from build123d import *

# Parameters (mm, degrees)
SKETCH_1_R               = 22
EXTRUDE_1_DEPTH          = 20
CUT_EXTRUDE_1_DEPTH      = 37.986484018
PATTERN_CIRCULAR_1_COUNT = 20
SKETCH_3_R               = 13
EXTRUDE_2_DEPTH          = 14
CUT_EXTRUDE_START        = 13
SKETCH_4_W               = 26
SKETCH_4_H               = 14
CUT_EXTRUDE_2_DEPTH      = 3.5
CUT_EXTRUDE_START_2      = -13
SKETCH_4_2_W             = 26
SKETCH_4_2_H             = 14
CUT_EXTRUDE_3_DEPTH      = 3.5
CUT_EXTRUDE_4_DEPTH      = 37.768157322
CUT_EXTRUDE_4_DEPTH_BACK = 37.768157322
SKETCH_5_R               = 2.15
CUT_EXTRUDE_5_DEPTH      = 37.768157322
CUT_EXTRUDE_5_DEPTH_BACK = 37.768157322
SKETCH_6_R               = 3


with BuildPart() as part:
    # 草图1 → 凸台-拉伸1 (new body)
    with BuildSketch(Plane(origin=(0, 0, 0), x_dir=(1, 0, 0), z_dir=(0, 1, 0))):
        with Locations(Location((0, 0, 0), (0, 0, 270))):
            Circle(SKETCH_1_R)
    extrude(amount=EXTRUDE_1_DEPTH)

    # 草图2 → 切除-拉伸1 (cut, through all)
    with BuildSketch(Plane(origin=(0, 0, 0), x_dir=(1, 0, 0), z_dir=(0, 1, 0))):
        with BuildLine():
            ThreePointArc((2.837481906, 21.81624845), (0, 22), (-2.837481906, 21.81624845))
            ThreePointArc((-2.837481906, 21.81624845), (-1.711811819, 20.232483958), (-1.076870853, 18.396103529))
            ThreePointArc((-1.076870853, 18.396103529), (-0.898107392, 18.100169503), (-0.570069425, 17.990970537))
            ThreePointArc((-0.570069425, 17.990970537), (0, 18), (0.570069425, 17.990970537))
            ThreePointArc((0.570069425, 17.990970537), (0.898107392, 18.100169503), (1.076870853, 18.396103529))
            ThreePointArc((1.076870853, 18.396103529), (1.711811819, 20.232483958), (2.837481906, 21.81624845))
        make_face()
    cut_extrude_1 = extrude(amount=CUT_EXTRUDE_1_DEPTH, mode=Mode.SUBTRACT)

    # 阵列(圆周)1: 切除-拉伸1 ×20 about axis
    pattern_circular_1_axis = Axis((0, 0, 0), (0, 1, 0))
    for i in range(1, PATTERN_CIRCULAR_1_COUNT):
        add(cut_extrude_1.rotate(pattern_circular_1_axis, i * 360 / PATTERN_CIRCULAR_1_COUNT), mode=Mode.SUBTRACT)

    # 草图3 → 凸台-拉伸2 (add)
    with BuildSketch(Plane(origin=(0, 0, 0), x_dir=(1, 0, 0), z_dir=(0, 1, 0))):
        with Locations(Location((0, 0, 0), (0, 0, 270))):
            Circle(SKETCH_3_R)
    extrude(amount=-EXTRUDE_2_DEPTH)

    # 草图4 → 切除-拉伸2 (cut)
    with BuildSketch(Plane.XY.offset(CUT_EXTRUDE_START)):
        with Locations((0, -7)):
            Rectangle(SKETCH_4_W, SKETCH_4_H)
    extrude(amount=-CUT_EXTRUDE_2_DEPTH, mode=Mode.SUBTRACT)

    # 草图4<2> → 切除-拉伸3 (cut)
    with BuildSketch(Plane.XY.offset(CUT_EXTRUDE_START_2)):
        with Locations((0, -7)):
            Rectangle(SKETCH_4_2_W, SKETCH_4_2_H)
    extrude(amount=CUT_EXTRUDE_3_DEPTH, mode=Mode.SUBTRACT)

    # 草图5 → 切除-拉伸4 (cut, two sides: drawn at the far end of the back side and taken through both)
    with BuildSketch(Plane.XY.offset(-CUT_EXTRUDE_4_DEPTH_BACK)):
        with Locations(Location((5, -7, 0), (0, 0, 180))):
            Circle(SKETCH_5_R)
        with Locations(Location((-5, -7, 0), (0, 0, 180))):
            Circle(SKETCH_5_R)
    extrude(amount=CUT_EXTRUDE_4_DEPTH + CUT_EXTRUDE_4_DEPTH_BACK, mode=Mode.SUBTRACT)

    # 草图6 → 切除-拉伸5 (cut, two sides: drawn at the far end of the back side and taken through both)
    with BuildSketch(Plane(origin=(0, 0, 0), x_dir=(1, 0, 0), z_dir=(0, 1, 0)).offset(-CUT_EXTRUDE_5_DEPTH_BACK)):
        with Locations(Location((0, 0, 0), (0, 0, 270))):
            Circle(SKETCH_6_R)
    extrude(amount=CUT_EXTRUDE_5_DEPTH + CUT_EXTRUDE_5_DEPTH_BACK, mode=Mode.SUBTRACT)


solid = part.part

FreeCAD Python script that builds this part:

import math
import FreeCAD as App
import Part
import Sketcher
Q = App.Units.Quantity

doc = App.newDocument("Part")
params = doc.addObject("Spreadsheet::Sheet", "Params")
for row, (alias, value) in enumerate([
    ("sketch1_diameter", "44 mm"),
    ("pad1_length", "20 mm"),
    ("sketch2_radius", "22 mm"),
    ("sketch2_radius2", "18.000001 mm"),
    ("sketch2_radius3", "0.5 mm"),
    ("sketch3_diameter", "26 mm"),
    ("pad2_length", "14 mm"),
    ("sketch4_width", "26 mm"),
    ("sketch4_height", "14 mm"),
    ("pocket2_length", "3.5 mm"),
    ("sketch5_width", "26 mm"),
    ("sketch5_height", "14 mm"),
    ("pocket3_length", "3.5 mm"),
    ("sketch6_diameter", "4.3 mm"),
    ("sketch7_diameter", "6 mm"),
], start=1):
    params.set(f"A{row}", alias)
    params.set(f"B{row}", "=" + value)
    params.setAlias(f"B{row}", alias)

body = doc.addObject("PartDesign::Body", "Body")

# Sketch on XZ plane
sketch1 = doc.addObject("Sketcher::SketchObject", "Sketch")
body.addObject(sketch1)
sketch1.AttachmentSupport = (doc.XZ_Plane, [""])
sketch1.MapMode = "FlatFace"
sketch1.addGeometry(Part.Circle(App.Vector(0, 0, 0), App.Vector(0, 0, 1), 22), False)
sketch1.addConstraint([
    Sketcher.Constraint("Coincident", 0, 3, -1, 1),
    Sketcher.Constraint("Diameter", 0, Q("44 mm")),
])
sketch1.setExpression("Constraints[1]", "Params.sketch1_diameter")
pad1 = doc.addObject("PartDesign::Pad", "Pad")
body.addObject(pad1)
pad1.Profile = sketch1
pad1.setExpression("Length", "Params.pad1_length")
pad1.Reversed = True

# Sketch on XZ plane
sketch2 = doc.addObject("Sketcher::SketchObject", "Sketch001")
body.addObject(sketch2)
sketch2.AttachmentSupport = (doc.XZ_Plane, [""])
sketch2.MapMode = "FlatFace"
sketch2.addGeometry([
    Part.ArcOfCircle(Part.Circle(App.Vector(0, 0, 0), App.Vector(0, 0, 1), 22), math.radians(-97.41), math.radians(-82.59)),  # 0
    Part.ArcOfCircle(Part.Circle(App.Vector(-7.79, -17.1, 0), App.Vector(0, 0, 1), 6.84), math.radians(-44), math.radians(-11)),  # 1
    Part.ArcOfCircle(Part.Circle(App.Vector(-0.59, -18.49, 0), App.Vector(0, 0, 1), 0.5), math.radians(88), math.radians(169)),  # 2
    Part.ArcOfCircle(Part.Circle(App.Vector(0, 0, 0), App.Vector(0, 0, 1), 18), math.radians(-91.81), math.radians(-88.19)),  # 3
    Part.ArcOfCircle(Part.Circle(App.Vector(0.59, -18.49, 0), App.Vector(0, 0, 1), 0.5), math.radians(11), math.radians(92)),  # 4
    Part.ArcOfCircle(Part.Circle(App.Vector(7.79, -17.1, 0), App.Vector(0, 0, 1), 6.84), math.radians(-169), math.radians(-136)),  # 5
], False)
sketch2.addConstraint([
    Sketcher.Constraint("Coincident", 0, 1, 1, 1),
    Sketcher.Constraint("Tangent", 1, 2, 2, 2),
    Sketcher.Constraint("Tangent", 2, 1, 3, 1),
    Sketcher.Constraint("Tangent", 3, 2, 4, 2),
    Sketcher.Constraint("Tangent", 4, 1, 5, 1),
    Sketcher.Constraint("Coincident", 5, 2, 0, 2),
    Sketcher.Constraint("Coincident", 0, 3, -1, 1),
    Sketcher.Constraint("Coincident", 3, 3, -1, 1),
    Sketcher.Constraint("Equal", 2, 4),
    Sketcher.Constraint("Equal", 1, 5),
    Sketcher.Constraint("Symmetric", 1, 3, 5, 3, -2),
    Sketcher.Constraint("Radius", 0, Q("22 mm")),
    Sketcher.Constraint("Radius", 3, Q("18.000001 mm")),
    Sketcher.Constraint("Radius", 2, Q("0.5 mm")),
    Sketcher.Constraint("Radius", 1, Q("6.840403 mm")),
    Sketcher.Constraint("DistanceX", 1, 3, 0, 1, Q("4.956202 mm")),
    Sketcher.Constraint("DistanceX", 1, 2, 2, 1, Q("0.506801 mm")),
])
sketch2.setExpression("Constraints[11]", "Params.sketch2_radius")
sketch2.setExpression("Constraints[12]", "Params.sketch2_radius2")
sketch2.setExpression("Constraints[13]", "Params.sketch2_radius3")
pocket1 = doc.addObject("PartDesign::Pocket", "Pocket")
body.addObject(pocket1)
pocket1.Profile = sketch2
pocket1.Type = "ThroughAll"
doc.recompute()

polarpattern = doc.addObject("PartDesign::PolarPattern", "PolarPattern")
body.addObject(polarpattern)
polarpattern.Originals = [pocket1]
polarpattern.Axis = (doc.Y_Axis, [""])
polarpattern.Angle = 360
polarpattern.Occurrences = 20
body.Tip = polarpattern

# Sketch on XZ plane
sketch3 = doc.addObject("Sketcher::SketchObject", "Sketch002")
body.addObject(sketch3)
sketch3.AttachmentSupport = (doc.XZ_Plane, [""])
sketch3.MapMode = "FlatFace"
sketch3.addGeometry(Part.Circle(App.Vector(0, 0, 0), App.Vector(0, 0, 1), 13), False)
sketch3.addConstraint([
    Sketcher.Constraint("Coincident", 0, 3, -1, 1),
    Sketcher.Constraint("Diameter", 0, Q("26 mm")),
])
sketch3.setExpression("Constraints[1]", "Params.sketch3_diameter")
pad2 = doc.addObject("PartDesign::Pad", "Pad001")
body.addObject(pad2)
pad2.Profile = sketch3
pad2.setExpression("Length", "Params.pad2_length")

# Sketch on XY plane
sketch4 = doc.addObject("Sketcher::SketchObject", "Sketch003")
body.addObject(sketch4)
sketch4.AttachmentSupport = (doc.XY_Plane, [""])
sketch4.MapMode = "FlatFace"
sketch4.AttachmentOffset = App.Placement(App.Vector(0, 0, 13), App.Rotation())
sketch4.addGeometry([
    Part.LineSegment(App.Vector(-13, 0, 0), App.Vector(-13, -14, 0)),
    Part.LineSegment(App.Vector(-13, -14, 0), App.Vector(13, -14, 0)),
    Part.LineSegment(App.Vector(13, -14, 0), App.Vector(13, 0, 0)),
    Part.LineSegment(App.Vector(13, 0, 0), App.Vector(-13, 0, 0)),
], False)
sketch4.addConstraint([
    Sketcher.Constraint("Coincident", 0, 2, 1, 1),
    Sketcher.Constraint("Coincident", 1, 2, 2, 1),
    Sketcher.Constraint("Coincident", 2, 2, 3, 1),
    Sketcher.Constraint("Coincident", 3, 2, 0, 1),
    Sketcher.Constraint("Vertical", 0),
    Sketcher.Constraint("Horizontal", 1),
    Sketcher.Constraint("Vertical", 2),
    Sketcher.Constraint("Horizontal", 3),
    Sketcher.Constraint("Symmetric", 2, 2, 3, 2, -1, 1),
    Sketcher.Constraint("DistanceX", 1, 1, 1, 2, Q("26 mm")),
    Sketcher.Constraint("DistanceY", 0, 2, 0, 1, Q("14 mm")),
])
sketch4.setExpression("Constraints[9]", "Params.sketch4_width")
sketch4.setExpression("Constraints[10]", "Params.sketch4_height")
pocket2 = doc.addObject("PartDesign::Pocket", "Pocket001")
body.addObject(pocket2)
pocket2.Profile = sketch4
pocket2.setExpression("Length", "Params.pocket2_length")

# Sketch on XY plane
sketch5 = doc.addObject("Sketcher::SketchObject", "Sketch004")
body.addObject(sketch5)
sketch5.AttachmentSupport = (doc.XY_Plane, [""])
sketch5.MapMode = "FlatFace"
sketch5.AttachmentOffset = App.Placement(App.Vector(0, 0, -13), App.Rotation())
sketch5.addGeometry([
    Part.LineSegment(App.Vector(-13, 0, 0), App.Vector(-13, -14, 0)),
    Part.LineSegment(App.Vector(-13, -14, 0), App.Vector(13, -14, 0)),
    Part.LineSegment(App.Vector(13, -14, 0), App.Vector(13, 0, 0)),
    Part.LineSegment(App.Vector(13, 0, 0), App.Vector(-13, 0, 0)),
], False)
sketch5.addConstraint([
    Sketcher.Constraint("Coincident", 0, 2, 1, 1),
    Sketcher.Constraint("Coincident", 1, 2, 2, 1),
    Sketcher.Constraint("Coincident", 2, 2, 3, 1),
    Sketcher.Constraint("Coincident", 3, 2, 0, 1),
    Sketcher.Constraint("Vertical", 0),
    Sketcher.Constraint("Horizontal", 1),
    Sketcher.Constraint("Vertical", 2),
    Sketcher.Constraint("Horizontal", 3),
    Sketcher.Constraint("Symmetric", 2, 2, 3, 2, -1, 1),
    Sketcher.Constraint("DistanceX", 1, 1, 1, 2, Q("26 mm")),
    Sketcher.Constraint("DistanceY", 0, 2, 0, 1, Q("14 mm")),
])
sketch5.setExpression("Constraints[9]", "Params.sketch5_width")
sketch5.setExpression("Constraints[10]", "Params.sketch5_height")
pocket3 = doc.addObject("PartDesign::Pocket", "Pocket002")
body.addObject(pocket3)
pocket3.Profile = sketch5
pocket3.setExpression("Length", "Params.pocket3_length")
pocket3.Reversed = True

# Sketch on XY plane
sketch6 = doc.addObject("Sketcher::SketchObject", "Sketch005")
body.addObject(sketch6)
sketch6.AttachmentSupport = (doc.XY_Plane, [""])
sketch6.MapMode = "FlatFace"
sketch6.addGeometry([
    Part.Circle(App.Vector(5, -7, 0), App.Vector(0, 0, 1), 2.1),
    Part.Circle(App.Vector(-5, -7, 0), App.Vector(0, 0, 1), 2.1),
], False)
sketch6.addConstraint([
    Sketcher.Constraint("Equal", 0, 1),
    Sketcher.Constraint("Symmetric", 0, 3, 1, 3, -2),
    Sketcher.Constraint("Diameter", 0, Q("4.3 mm")),
    Sketcher.Constraint("DistanceX", -1, 1, 0, 3, Q("5 mm")),
    Sketcher.Constraint("DistanceY", 0, 3, -1, 1, Q("7 mm")),
])
sketch6.setExpression("Constraints[2]", "Params.sketch6_diameter")
pocket4 = doc.addObject("PartDesign::Pocket", "Pocket003")
body.addObject(pocket4)
pocket4.Profile = sketch6
pocket4.Type = "ThroughAll"
pocket4.Midplane = True

# Sketch on XZ plane
sketch7 = doc.addObject("Sketcher::SketchObject", "Sketch006")
body.addObject(sketch7)
sketch7.AttachmentSupport = (doc.XZ_Plane, [""])
sketch7.MapMode = "FlatFace"
sketch7.addGeometry(Part.Circle(App.Vector(0, 0, 0), App.Vector(0, 0, 1), 3), False)
sketch7.addConstraint([
    Sketcher.Constraint("Coincident", 0, 3, -1, 1),
    Sketcher.Constraint("Diameter", 0, Q("6 mm")),
])
sketch7.setExpression("Constraints[1]", "Params.sketch7_diameter")
pocket5 = doc.addObject("PartDesign::Pocket", "Pocket004")
body.addObject(pocket5)
pocket5.Profile = sketch7
pocket5.Type = "ThroughAll"
pocket5.Midplane = True

doc.recompute()
